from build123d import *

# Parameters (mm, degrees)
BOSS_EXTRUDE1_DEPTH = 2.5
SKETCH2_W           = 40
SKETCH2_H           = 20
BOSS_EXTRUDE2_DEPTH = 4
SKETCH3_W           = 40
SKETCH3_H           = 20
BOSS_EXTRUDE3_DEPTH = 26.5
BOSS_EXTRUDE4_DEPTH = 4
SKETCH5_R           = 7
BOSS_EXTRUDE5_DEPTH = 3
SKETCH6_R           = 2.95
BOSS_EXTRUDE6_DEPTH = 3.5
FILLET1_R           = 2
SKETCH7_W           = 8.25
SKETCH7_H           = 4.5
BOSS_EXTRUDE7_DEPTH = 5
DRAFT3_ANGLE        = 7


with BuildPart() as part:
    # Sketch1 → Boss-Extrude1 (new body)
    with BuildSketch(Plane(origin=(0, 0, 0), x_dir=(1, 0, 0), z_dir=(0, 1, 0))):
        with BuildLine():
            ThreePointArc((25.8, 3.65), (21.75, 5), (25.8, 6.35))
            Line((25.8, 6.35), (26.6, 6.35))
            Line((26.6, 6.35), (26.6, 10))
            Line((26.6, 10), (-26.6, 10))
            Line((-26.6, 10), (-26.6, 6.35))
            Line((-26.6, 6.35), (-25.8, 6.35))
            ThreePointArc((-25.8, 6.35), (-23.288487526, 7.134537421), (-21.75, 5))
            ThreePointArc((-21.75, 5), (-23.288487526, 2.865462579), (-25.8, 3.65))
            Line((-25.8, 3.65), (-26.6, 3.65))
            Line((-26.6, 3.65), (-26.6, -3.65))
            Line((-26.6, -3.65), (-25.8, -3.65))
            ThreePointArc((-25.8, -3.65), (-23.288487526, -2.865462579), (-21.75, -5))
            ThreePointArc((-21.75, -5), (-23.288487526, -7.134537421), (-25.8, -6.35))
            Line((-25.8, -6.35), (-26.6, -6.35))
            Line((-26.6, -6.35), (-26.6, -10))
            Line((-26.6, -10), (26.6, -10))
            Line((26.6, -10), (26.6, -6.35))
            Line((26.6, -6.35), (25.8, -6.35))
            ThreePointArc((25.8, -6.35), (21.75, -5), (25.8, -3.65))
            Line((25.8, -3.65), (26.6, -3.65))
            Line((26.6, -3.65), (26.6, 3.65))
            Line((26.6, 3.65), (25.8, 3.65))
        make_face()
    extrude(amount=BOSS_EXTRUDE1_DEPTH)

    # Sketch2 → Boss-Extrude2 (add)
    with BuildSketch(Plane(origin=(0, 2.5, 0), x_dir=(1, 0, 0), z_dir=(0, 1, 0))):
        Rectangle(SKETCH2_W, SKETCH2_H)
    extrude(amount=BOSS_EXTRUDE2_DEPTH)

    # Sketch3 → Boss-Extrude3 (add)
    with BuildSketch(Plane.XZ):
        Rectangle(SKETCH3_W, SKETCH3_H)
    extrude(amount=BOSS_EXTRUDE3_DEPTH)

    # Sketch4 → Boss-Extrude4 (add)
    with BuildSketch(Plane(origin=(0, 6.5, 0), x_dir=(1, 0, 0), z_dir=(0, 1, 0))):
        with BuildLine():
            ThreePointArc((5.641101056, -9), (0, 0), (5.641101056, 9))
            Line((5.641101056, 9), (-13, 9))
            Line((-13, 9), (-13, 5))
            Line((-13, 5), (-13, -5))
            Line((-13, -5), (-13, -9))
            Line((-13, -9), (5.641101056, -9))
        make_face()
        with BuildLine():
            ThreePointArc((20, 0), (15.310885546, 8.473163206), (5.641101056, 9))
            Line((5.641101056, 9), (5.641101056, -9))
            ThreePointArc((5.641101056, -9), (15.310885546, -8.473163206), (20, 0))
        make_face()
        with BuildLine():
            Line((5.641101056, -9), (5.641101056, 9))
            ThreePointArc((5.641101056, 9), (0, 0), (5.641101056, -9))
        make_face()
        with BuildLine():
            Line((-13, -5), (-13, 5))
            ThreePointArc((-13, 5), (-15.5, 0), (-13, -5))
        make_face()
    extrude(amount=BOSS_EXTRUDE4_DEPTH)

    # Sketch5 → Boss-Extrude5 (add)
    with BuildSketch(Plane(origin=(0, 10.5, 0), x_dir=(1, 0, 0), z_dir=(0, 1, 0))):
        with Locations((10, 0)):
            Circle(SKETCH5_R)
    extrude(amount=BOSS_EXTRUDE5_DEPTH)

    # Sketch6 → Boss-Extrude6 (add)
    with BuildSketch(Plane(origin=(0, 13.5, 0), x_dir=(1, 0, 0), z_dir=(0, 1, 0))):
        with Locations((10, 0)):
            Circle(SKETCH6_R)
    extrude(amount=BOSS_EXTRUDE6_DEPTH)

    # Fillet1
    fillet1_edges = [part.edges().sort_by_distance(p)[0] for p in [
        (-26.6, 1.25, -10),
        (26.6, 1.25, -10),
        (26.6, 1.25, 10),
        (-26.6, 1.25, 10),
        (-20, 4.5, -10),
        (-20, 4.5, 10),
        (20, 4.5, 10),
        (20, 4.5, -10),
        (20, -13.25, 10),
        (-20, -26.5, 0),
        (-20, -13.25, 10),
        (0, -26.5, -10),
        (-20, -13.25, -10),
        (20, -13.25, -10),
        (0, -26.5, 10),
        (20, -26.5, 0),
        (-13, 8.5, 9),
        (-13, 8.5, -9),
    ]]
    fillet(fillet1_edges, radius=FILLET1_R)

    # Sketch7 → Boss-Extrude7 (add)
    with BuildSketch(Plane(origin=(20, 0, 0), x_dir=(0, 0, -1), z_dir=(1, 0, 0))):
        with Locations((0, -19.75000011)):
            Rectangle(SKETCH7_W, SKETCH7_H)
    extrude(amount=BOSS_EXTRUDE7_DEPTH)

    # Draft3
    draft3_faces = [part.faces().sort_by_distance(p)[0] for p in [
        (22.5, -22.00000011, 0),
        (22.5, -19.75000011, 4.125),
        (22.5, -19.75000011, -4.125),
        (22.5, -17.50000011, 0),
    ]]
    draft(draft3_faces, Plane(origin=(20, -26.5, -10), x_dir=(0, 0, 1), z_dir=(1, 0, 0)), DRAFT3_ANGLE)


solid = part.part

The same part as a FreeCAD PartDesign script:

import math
import FreeCAD as App
import Part
import Sketcher


def edges_at(feature, points):
    """Names of the edges that pass closest to the given points."""
    edges = feature.Shape.Edges
    near = lambda p: min(range(len(edges)), key=lambda i: edges[i].distToShape(Part.Vertex(*p))[0])
    return sorted({f"Edge{near(p) + 1}" for p in points})


def faces_at(feature, points):
    """Names of the faces that lie closest to the given points."""
    faces = feature.Shape.Faces
    near = lambda p: min(range(len(faces)), key=lambda i: faces[i].distToShape(Part.Vertex(*p))[0])
    return sorted({f"Face{near(p) + 1}" for p in points})


def add_polygon(sketch, points):
    """Adds a closed chain of lines whose ends are joined by coincident constraints."""
    first, n = sketch.GeometryCount, len(points)
    for a, b in zip(points, points[1:] + points[:1]):
        sketch.addGeometry(Part.LineSegment(App.Vector(*a, 0), App.Vector(*b, 0)), False)
    for i in range(n):
        sketch.addConstraint(Sketcher.Constraint("Coincident", first + i, 2, first + (i + 1) % n, 1))

doc = App.newDocument("Part")
body = doc.addObject("PartDesign::Body", "Body")

sketch1 = doc.addObject("Sketcher::SketchObject", "Sketch")
body.addObject(sketch1)
sketch1.AttachmentSupport = (doc.XZ_Plane, [""])
sketch1.MapMode = "FlatFace"
sketch1.addGeometry(Part.ArcOfCircle(Part.Circle(App.Vector(24, -5, 0), App.Vector(0, 0, 1), 2.25), math.radians(36.869898), math.radians(323.130102)), False)
sketch1.addGeometry(Part.LineSegment(App.Vector(25.8, -6.35, 0), App.Vector(26.6, -6.35, 0)), False)
sketch1.addGeometry(Part.LineSegment(App.Vector(26.6, -6.35, 0), App.Vector(26.6, -10, 0)), False)
sketch1.addGeometry(Part.LineSegment(App.Vector(26.6, -10, 0), App.Vector(-26.6, -10, 0)), False)
sketch1.addGeometry(Part.LineSegment(App.Vector(-26.6, -10, 0), App.Vector(-26.6, -6.35, 0)), False)
sketch1.addGeometry(Part.LineSegment(App.Vector(-26.6, -6.35, 0), App.Vector(-25.8, -6.35, 0)), False)
sketch1.addGeometry(Part.ArcOfCircle(Part.Circle(App.Vector(-24, -5, 0), App.Vector(0, 0, 1), 2.25), math.radians(-143.130102), math.radians(0)), False)
sketch1.addGeometry(Part.ArcOfCircle(Part.Circle(App.Vector(-24, -5, 0), App.Vector(0, 0, 1), 2.25), math.radians(0), math.radians(143.130102)), False)
sketch1.addGeometry(Part.LineSegment(App.Vector(-25.8, -3.65, 0), App.Vector(-26.6, -3.65, 0)), False)
sketch1.addGeometry(Part.LineSegment(App.Vector(-26.6, -3.65, 0), App.Vector(-26.6, 3.65, 0)), False)
sketch1.addGeometry(Part.LineSegment(App.Vector(-26.6, 3.65, 0), App.Vector(-25.8, 3.65, 0)), False)
sketch1.addGeometry(Part.ArcOfCircle(Part.Circle(App.Vector(-24, 5, 0), App.Vector(0, 0, 1), 2.25), math.radians(-143.130102), math.radians(0)), False)
sketch1.addGeometry(Part.ArcOfCircle(Part.Circle(App.Vector(-24, 5, 0), App.Vector(0, 0, 1), 2.25), math.radians(0), math.radians(143.130102)), False)
sketch1.addGeometry(Part.LineSegment(App.Vector(-25.8, 6.35, 0), App.Vector(-26.6, 6.35, 0)), False)
sketch1.addGeometry(Part.LineSegment(App.Vector(-26.6, 6.35, 0), App.Vector(-26.6, 10, 0)), False)
sketch1.addGeometry(Part.LineSegment(App.Vector(-26.6, 10, 0), App.Vector(26.6, 10, 0)), False)
sketch1.addGeometry(Part.LineSegment(App.Vector(26.6, 10, 0), App.Vector(26.6, 6.35, 0)), False)
sketch1.addGeometry(Part.LineSegment(App.Vector(26.6, 6.35, 0), App.Vector(25.8, 6.35, 0)), False)
sketch1.addGeometry(Part.ArcOfCircle(Part.Circle(App.Vector(24, 5, 0), App.Vector(0, 0, 1), 2.25), math.radians(36.869898), math.radians(323.130102)), False)
sketch1.addGeometry(Part.LineSegment(App.Vector(25.8, 3.65, 0), App.Vector(26.6, 3.65, 0)), False)
sketch1.addGeometry(Part.LineSegment(App.Vector(26.6, 3.65, 0), App.Vector(26.6, -3.65, 0)), False)
sketch1.addGeometry(Part.LineSegment(App.Vector(26.6, -3.65, 0), App.Vector(25.8, -3.65, 0)), False)
sketch1.addConstraint(Sketcher.Constraint("Coincident", 0, 2, 1, 1))
sketch1.addConstraint(Sketcher.Constraint("Coincident", 1, 2, 2, 1))
sketch1.addConstraint(Sketcher.Constraint("Coincident", 2, 2, 3, 1))
sketch1.addConstraint(Sketcher.Constraint("Coincident", 3, 2, 4, 1))
sketch1.addConstraint(Sketcher.Constraint("Coincident", 4, 2, 5, 1))
sketch1.addConstraint(Sketcher.Constraint("Coincident", 5, 2, 6, 1))
sketch1.addConstraint(Sketcher.Constraint("Tangent", 6, 2, 7, 1))
sketch1.addConstraint(Sketcher.Constraint("Coincident", 7, 2, 8, 1))
sketch1.addConstraint(Sketcher.Constraint("Coincident", 8, 2, 9, 1))
sketch1.addConstraint(Sketcher.Constraint("Coincident", 9, 2, 10, 1))
sketch1.addConstraint(Sketcher.Constraint("Coincident", 10, 2, 11, 1))
sketch1.addConstraint(Sketcher.Constraint("Tangent", 11, 2, 12, 1))
sketch1.addConstraint(Sketcher.Constraint("Coincident", 12, 2, 13, 1))
sketch1.addConstraint(Sketcher.Constraint("Coincident", 13, 2, 14, 1))
sketch1.addConstraint(Sketcher.Constraint("Coincident", 14, 2, 15, 1))
sketch1.addConstraint(Sketcher.Constraint("Coincident", 15, 2, 16, 1))
sketch1.addConstraint(Sketcher.Constraint("Coincident", 16, 2, 17, 1))
sketch1.addConstraint(Sketcher.Constraint("Coincident", 17, 2, 18, 1))
sketch1.addConstraint(Sketcher.Constraint("Coincident", 18, 2, 19, 1))
sketch1.addConstraint(Sketcher.Constraint("Coincident", 19, 2, 20, 1))
sketch1.addConstraint(Sketcher.Constraint("Coincident", 20, 2, 21, 1))
sketch1.addConstraint(Sketcher.Constraint("Coincident", 21, 2, 0, 1))
sketch1.addConstraint(Sketcher.Constraint("Horizontal", 1))
sketch1.addConstraint(Sketcher.Constraint("Vertical", 2))
sketch1.addConstraint(Sketcher.Constraint("Horizontal", 3))
sketch1.addConstraint(Sketcher.Constraint("Vertical", 4))
sketch1.addConstraint(Sketcher.Constraint("Horizontal", 5))
sketch1.addConstraint(Sketcher.Constraint("Horizontal", 8))
sketch1.addConstraint(Sketcher.Constraint("Vertical", 9))
sketch1.addConstraint(Sketcher.Constraint("Horizontal", 10))
sketch1.addConstraint(Sketcher.Constraint("Horizontal", 13))
sketch1.addConstraint(Sketcher.Constraint("Vertical", 14))
sketch1.addConstraint(Sketcher.Constraint("Horizontal", 15))
sketch1.addConstraint(Sketcher.Constraint("Vertical", 16))
sketch1.addConstraint(Sketcher.Constraint("Horizontal", 17))
sketch1.addConstraint(Sketcher.Constraint("Horizontal", 19))
sketch1.addConstraint(Sketcher.Constraint("Vertical", 20))
sketch1.addConstraint(Sketcher.Constraint("Horizontal", 21))
sketch1.addConstraint(Sketcher.Constraint("Equal", 0, 6))
sketch1.addConstraint(Sketcher.Constraint("Equal", 6, 7))
sketch1.addConstraint(Sketcher.Constraint("Equal", 7, 11))
sketch1.addConstraint(Sketcher.Constraint("Equal", 11, 12))
sketch1.addConstraint(Sketcher.Constraint("Equal", 12, 18))
sketch1.addConstraint(Sketcher.Constraint("Symmetric", 0, 3, 11, 3, -1, 1))
sketch1.addConstraint(Sketcher.Constraint("Symmetric", 6, 3, 18, 3, -1, 1))
sketch1.addConstraint(Sketcher.Constraint("Symmetric", 1, 2, 13, 2, -1, 1))
sketch1.addConstraint(Sketcher.Constraint("Symmetric", 3, 2, 15, 2, -1, 1))
sketch1.addConstraint(Sketcher.Constraint("Symmetric", 8, 2, 19, 2, -1, 1))
sketch1.addConstraint(Sketcher.Constraint("Symmetric", 0, 3, 6, 3, -2))
sketch1.addConstraint(Sketcher.Constraint("Symmetric", 1, 2, 4, 2, -2))
sketch1.addConstraint(Sketcher.Constraint("Horizontal", 7, 3, 6, 2))
sketch1.addConstraint(Sketcher.Constraint("Horizontal", 18, 3, 11, 2))
sketch1.addConstraint(Sketcher.Constraint("Horizontal", 13, 2, 16, 2))
sketch1.addConstraint(Sketcher.Constraint("Horizontal", 10, 2, 18, 2))
sketch1.addConstraint(Sketcher.Constraint("Horizontal", 8, 2, 20, 2))
sketch1.addConstraint(Sketcher.Constraint("Vertical", 5, 2, 7, 2))
sketch1.addConstraint(Sketcher.Constraint("Vertical", 4, 2, 8, 2))
sketch1.addConstraint(Sketcher.Constraint("Radius", 0, 2.25))
sketch1.addConstraint(Sketcher.Constraint("DistanceX", 1, 1, 1, 2, 0.8))
sketch1.addConstraint(Sketcher.Constraint("DistanceX", 3, 2, 3, 1, 53.2))
sketch1.addConstraint(Sketcher.Constraint("DistanceY", 9, 1, 9, 2, 7.3))
sketch1.addConstraint(Sketcher.Constraint("DistanceX", -1, 1, 0, 3, 24.0))
sketch1.addConstraint(Sketcher.Constraint("DistanceY", 2, 2, -1, 1, 10.0))
pad1 = doc.addObject("PartDesign::Pad", "Pad")
body.addObject(pad1)
pad1.Profile = sketch1
pad1.Length = 2.5
pad1.Reversed = True

sketch2 = doc.addObject("Sketcher::SketchObject", "Sketch001")
body.addObject(sketch2)
sketch2.AttachmentSupport = (doc.XZ_Plane, [""])
sketch2.MapMode = "FlatFace"
sketch2.AttachmentOffset = App.Placement(App.Vector(0, 0, -2.5), App.Rotation())
add_polygon(sketch2, [(-20, -10), (-20, 10), (20, 10), (20, -10)])
sketch2.addConstraint(Sketcher.Constraint("Vertical", 0))
sketch2.addConstraint(Sketcher.Constraint("Horizontal", 1))
sketch2.addConstraint(Sketcher.Constraint("Vertical", 2))
sketch2.addConstraint(Sketcher.Constraint("Horizontal", 3))
sketch2.addConstraint(Sketcher.Constraint("Symmetric", 0, 2, 2, 2, -1, 1))
sketch2.addConstraint(Sketcher.Constraint("DistanceX", 1, 1, 1, 2, 40.0))
sketch2.addConstraint(Sketcher.Constraint("DistanceY", 0, 1, 0, 2, 20.0))
pad2 = doc.addObject("PartDesign::Pad", "Pad001")
body.addObject(pad2)
pad2.Profile = sketch2
pad2.Length = 4
pad2.Reversed = True

sketch3 = doc.addObject("Sketcher::SketchObject", "Sketch002")
body.addObject(sketch3)
sketch3.AttachmentSupport = (doc.XZ_Plane, [""])
sketch3.MapMode = "FlatFace"
add_polygon(sketch3, [(-20, 10), (-20, -10), (20, -10), (20, 10)])
sketch3.addConstraint(Sketcher.Constraint("Vertical", 0))
sketch3.addConstraint(Sketcher.Constraint("Horizontal", 1))
sketch3.addConstraint(Sketcher.Constraint("Vertical", 2))
sketch3.addConstraint(Sketcher.Constraint("Horizontal", 3))
sketch3.addConstraint(Sketcher.Constraint("Symmetric", 0, 2, 2, 2, -1, 1))
sketch3.addConstraint(Sketcher.Constraint("DistanceX", 1, 1, 1, 2, 40.0))
sketch3.addConstraint(Sketcher.Constraint("DistanceY", 0, 2, 0, 1, 20.0))
pad3 = doc.addObject("PartDesign::Pad", "Pad002")
body.addObject(pad3)
pad3.Profile = sketch3
pad3.Length = 26.5

sketch4 = doc.addObject("Sketcher::SketchObject", "Sketch003")
body.addObject(sketch4)
sketch4.AttachmentSupport = (doc.XZ_Plane, [""])
sketch4.MapMode = "FlatFace"
sketch4.AttachmentOffset = App.Placement(App.Vector(0, 0, -6.5), App.Rotation())
sketch4.addGeometry(Part.LineSegment(App.Vector(-13, -9, 0), App.Vector(-13, -5, 0)), False)
sketch4.addGeometry(Part.ArcOfCircle(Part.Circle(App.Vector(-9.25, 0, 0), App.Vector(0, 0, 1), 6.25), math.radians(126.869898), math.radians(233.130102)), False)
sketch4.addGeometry(Part.LineSegment(App.Vector(-13, 5, 0), App.Vector(-13, 9, 0)), False)
sketch4.addGeometry(Part.LineSegment(App.Vector(-13, 9, 0), App.Vector(5.641101, 9, 0)), False)
sketch4.addGeometry(Part.ArcOfCircle(Part.Circle(App.Vector(10, 0, 0), App.Vector(0, 0, 1), 10), math.radians(0), math.radians(115.841933)), False)
sketch4.addGeometry(Part.ArcOfCircle(Part.Circle(App.Vector(10, 0, 0), App.Vector(0, 0, 1), 10), math.radians(-115.841933), math.radians(0)), False)
sketch4.addGeometry(Part.LineSegment(App.Vector(5.641101, -9, 0), App.Vector(-13, -9, 0)), False)
sketch4.addConstraint(Sketcher.Constraint("Coincident", 0, 2, 1, 2))
sketch4.addConstraint(Sketcher.Constraint("Coincident", 1, 1, 2, 1))
sketch4.addConstraint(Sketcher.Constraint("Coincident", 2, 2, 3, 1))
sketch4.addConstraint(Sketcher.Constraint("Coincident", 3, 2, 4, 2))
sketch4.addConstraint(Sketcher.Constraint("Tangent", 4, 1, 5, 2))
sketch4.addConstraint(Sketcher.Constraint("Coincident", 5, 1, 6, 1))
sketch4.addConstraint(Sketcher.Constraint("Coincident", 6, 2, 0, 1))
sketch4.addConstraint(Sketcher.Constraint("Vertical", 0))
sketch4.addConstraint(Sketcher.Constraint("Vertical", 2))
sketch4.addConstraint(Sketcher.Constraint("Horizontal", 3))
sketch4.addConstraint(Sketcher.Constraint("Horizontal", 6))
sketch4.addConstraint(Sketcher.Constraint("Equal", 4, 5))
sketch4.addConstraint(Sketcher.Constraint("Symmetric", 0, 2, 1, 1, -1))
sketch4.addConstraint(Sketcher.Constraint("Symmetric", 3, 2, 5, 1, -1))
sketch4.addConstraint(Sketcher.Constraint("PointOnObject", 4, 1, -1))
sketch4.addConstraint(Sketcher.Constraint("Radius", 4, 10.0))
sketch4.addConstraint(Sketcher.Constraint("DistanceY", 0, 1, 0, 2, 4.0))
sketch4.addConstraint(Sketcher.Constraint("Radius", 1, 6.25))
sketch4.addConstraint(Sketcher.Constraint("DistanceX", -1, 1, 4, 3, 10.0))
sketch4.addConstraint(Sketcher.Constraint("DistanceX", 0, 2, -1, 1, 13.0))
sketch4.addConstraint(Sketcher.Constraint("DistanceY", 0, 2, -1, 1, 5.0))
pad4 = doc.addObject("PartDesign::Pad", "Pad003")
body.addObject(pad4)
pad4.Profile = sketch4
pad4.Length = 4
pad4.Reversed = True

sketch5 = doc.addObject("Sketcher::SketchObject", "Sketch004")
body.addObject(sketch5)
sketch5.AttachmentSupport = (doc.XZ_Plane, [""])
sketch5.MapMode = "FlatFace"
sketch5.AttachmentOffset = App.Placement(App.Vector(0, 0, -10.5), App.Rotation())
sketch5.addGeometry(Part.Circle(App.Vector(10, 0, 0), App.Vector(0, 0, 1), 7), False)
sketch5.addConstraint(Sketcher.Constraint("PointOnObject", 0, 3, -1))
sketch5.addConstraint(Sketcher.Constraint("Diameter", 0, 14.0))
sketch5.addConstraint(Sketcher.Constraint("DistanceX", -1, 1, 0, 3, 10.0))
pad5 = doc.addObject("PartDesign::Pad", "Pad004")
body.addObject(pad5)
pad5.Profile = sketch5
pad5.Length = 3
pad5.Reversed = True

sketch6 = doc.addObject("Sketcher::SketchObject", "Sketch005")
body.addObject(sketch6)
sketch6.AttachmentSupport = (doc.XZ_Plane, [""])
sketch6.MapMode = "FlatFace"
sketch6.AttachmentOffset = App.Placement(App.Vector(0, 0, -13.5), App.Rotation())
sketch6.addGeometry(Part.Circle(App.Vector(10, 0, 0), App.Vector(0, 0, 1), 2.95), False)
sketch6.addConstraint(Sketcher.Constraint("PointOnObject", 0, 3, -1))
sketch6.addConstraint(Sketcher.Constraint("Diameter", 0, 5.9))
sketch6.addConstraint(Sketcher.Constraint("DistanceX", -1, 1, 0, 3, 10.0))
pad6 = doc.addObject("PartDesign::Pad", "Pad005")
body.addObject(pad6)
pad6.Profile = sketch6
pad6.Length = 3.5
pad6.Reversed = True
doc.recompute()

fillet = doc.addObject("PartDesign::Fillet", "Fillet")
body.addObject(fillet)
fillet.Base = (pad6, edges_at(pad6, [
    (-26.6, 1.25, -10),
    (26.6, 1.25, -10),
    (26.6, 1.25, 10),
    (-26.6, 1.25, 10),
    (-20, 4.5, -10),
    (-20, 4.5, 10),
    (20, 4.5, 10),
    (20, 4.5, -10),
    (20, -13.25, 10),
    (-20, -26.5, 0),
    (-20, -13.25, 10),
    (0, -26.5, -10),
    (-20, -13.25, -10),
    (20, -13.25, -10),
    (0, -26.5, 10),
    (20, -26.5, 0),
    (-13, 8.5, 9),
    (-13, 8.5, -9),
]))
fillet.Radius = 2

sketch7 = doc.addObject("Sketcher::SketchObject", "Sketch006")
body.addObject(sketch7)
sketch7.AttachmentSupport = (doc.YZ_Plane, [""])
sketch7.MapMode = "FlatFace"
sketch7.AttachmentOffset = App.Placement(App.Vector(0, 0, 20), App.Rotation())
add_polygon(sketch7, [(-17.5, 4.125), (-22, 4.125), (-22, -4.125), (-17.5, -4.125)])
sketch7.addConstraint(Sketcher.Constraint("Horizontal", 0))
sketch7.addConstraint(Sketcher.Constraint("Vertical", 1))
sketch7.addConstraint(Sketcher.Constraint("Horizontal", 2))
sketch7.addConstraint(Sketcher.Constraint("Vertical", 3))
sketch7.addConstraint(Sketcher.Constraint("DistanceX", 0, 2, 0, 1, 4.5))
sketch7.addConstraint(Sketcher.Constraint("DistanceX", 0, 2, -1, 1, 22.0))
sketch7.addConstraint(Sketcher.Constraint("DistanceY", 1, 2, 1, 1, 8.25))
sketch7.addConstraint(Sketcher.Constraint("DistanceY", -1, 1, 0, 2, 4.125))
pad7 = doc.addObject("PartDesign::Pad", "Pad006")
body.addObject(pad7)
pad7.Profile = sketch7
pad7.Length = 5
doc.recompute()

datumplane = doc.addObject("PartDesign::Plane", "DatumPlane")
body.addObject(datumplane)
datumplane.AttachmentSupport = (doc.YZ_Plane, [""])
datumplane.MapMode = "FlatFace"
datumplane.AttachmentOffset = App.Placement(App.Vector(0, 0, 20), App.Rotation())
draft = doc.addObject("PartDesign::Draft", "Draft")
body.addObject(draft)
draft.Base = (pad7, faces_at(pad7, [
    (22.5, -22, 0),
    (22.5, -19.75, 4.125),
    (22.5, -19.75, -4.125),
    (22.5, -17.5, 0),
]))
draft.NeutralPlane = (datumplane, [""])
draft.Angle = 7
draft.Reversed = False

doc.recompute()
